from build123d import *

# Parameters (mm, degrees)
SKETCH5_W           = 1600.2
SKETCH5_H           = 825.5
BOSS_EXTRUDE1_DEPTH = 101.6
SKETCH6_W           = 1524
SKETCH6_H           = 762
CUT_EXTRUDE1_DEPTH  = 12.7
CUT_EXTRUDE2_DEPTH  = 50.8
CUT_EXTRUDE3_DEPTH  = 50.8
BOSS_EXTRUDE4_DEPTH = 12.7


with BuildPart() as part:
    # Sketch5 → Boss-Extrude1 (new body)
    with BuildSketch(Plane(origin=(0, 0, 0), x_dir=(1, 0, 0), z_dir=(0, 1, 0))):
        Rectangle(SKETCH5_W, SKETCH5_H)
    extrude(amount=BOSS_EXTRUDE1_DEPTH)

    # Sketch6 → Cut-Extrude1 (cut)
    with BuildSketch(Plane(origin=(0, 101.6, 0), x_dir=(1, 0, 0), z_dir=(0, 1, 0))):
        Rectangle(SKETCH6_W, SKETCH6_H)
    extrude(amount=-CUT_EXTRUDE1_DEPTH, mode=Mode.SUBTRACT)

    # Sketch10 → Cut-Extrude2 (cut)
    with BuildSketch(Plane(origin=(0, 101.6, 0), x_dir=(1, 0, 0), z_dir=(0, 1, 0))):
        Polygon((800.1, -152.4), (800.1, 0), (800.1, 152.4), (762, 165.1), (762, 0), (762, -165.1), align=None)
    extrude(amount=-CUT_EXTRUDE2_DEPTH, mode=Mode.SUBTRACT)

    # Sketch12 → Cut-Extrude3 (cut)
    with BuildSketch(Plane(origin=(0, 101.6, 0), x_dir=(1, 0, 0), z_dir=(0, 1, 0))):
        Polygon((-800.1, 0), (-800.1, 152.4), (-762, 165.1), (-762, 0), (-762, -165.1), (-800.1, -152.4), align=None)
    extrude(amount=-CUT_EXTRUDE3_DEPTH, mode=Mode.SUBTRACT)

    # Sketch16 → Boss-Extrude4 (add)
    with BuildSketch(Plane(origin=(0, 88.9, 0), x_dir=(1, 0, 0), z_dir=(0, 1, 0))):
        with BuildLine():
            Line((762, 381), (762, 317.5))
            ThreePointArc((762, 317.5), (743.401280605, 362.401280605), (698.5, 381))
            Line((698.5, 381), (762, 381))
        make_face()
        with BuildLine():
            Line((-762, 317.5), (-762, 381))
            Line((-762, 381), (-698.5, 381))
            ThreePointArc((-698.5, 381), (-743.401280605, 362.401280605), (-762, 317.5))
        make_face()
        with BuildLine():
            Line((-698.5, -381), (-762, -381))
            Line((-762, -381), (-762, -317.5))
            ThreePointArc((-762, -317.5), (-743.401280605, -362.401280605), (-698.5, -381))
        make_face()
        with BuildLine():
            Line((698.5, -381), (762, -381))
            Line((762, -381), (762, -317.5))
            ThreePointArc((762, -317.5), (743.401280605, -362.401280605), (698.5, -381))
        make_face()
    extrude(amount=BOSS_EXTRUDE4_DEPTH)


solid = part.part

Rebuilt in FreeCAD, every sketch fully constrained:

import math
import FreeCAD as App
import Part
import Sketcher
Q = App.Units.Quantity

doc = App.newDocument("Part")
body = doc.addObject("PartDesign::Body", "Body")

# Sketch on XZ plane
sketch1 = doc.addObject("Sketcher::SketchObject", "Sketch")
body.addObject(sketch1)
sketch1.AttachmentSupport = (doc.XZ_Plane, [""])
sketch1.MapMode = "FlatFace"
sketch1.addGeometry([
    Part.LineSegment(App.Vector(-800, -413, 0), App.Vector(-800, 413, 0)),
    Part.LineSegment(App.Vector(-800, 413, 0), App.Vector(800, 413, 0)),
    Part.LineSegment(App.Vector(800, 413, 0), App.Vector(800, -413, 0)),
    Part.LineSegment(App.Vector(800, -413, 0), App.Vector(-800, -413, 0)),
], False)
sketch1.addConstraint([
    Sketcher.Constraint("Coincident", 0, 2, 1, 1),
    Sketcher.Constraint("Coincident", 1, 2, 2, 1),
    Sketcher.Constraint("Coincident", 2, 2, 3, 1),
    Sketcher.Constraint("Coincident", 3, 2, 0, 1),
    Sketcher.Constraint("Vertical", 0),
    Sketcher.Constraint("Horizontal", 1),
    Sketcher.Constraint("Vertical", 2),
    Sketcher.Constraint("Horizontal", 3),
    Sketcher.Constraint("Symmetric", 0, 2, 2, 2, -1, 1),
    Sketcher.Constraint("DistanceX", 1, 1, 1, 2, Q("63 in")),
    Sketcher.Constraint("DistanceY", 0, 1, 0, 2, Q("32.5 in")),
])
pad1 = doc.addObject("PartDesign::Pad", "Pad")
body.addObject(pad1)
pad1.Profile = sketch1
pad1.Length = Q("4 in")
pad1.Reversed = True

# Sketch on XZ plane
sketch2 = doc.addObject("Sketcher::SketchObject", "Sketch001")
body.addObject(sketch2)
sketch2.AttachmentSupport = (doc.XZ_Plane, [""])
sketch2.MapMode = "FlatFace"
sketch2.AttachmentOffset = App.Placement(App.Vector(0, 0, -4 * 25.4), App.Rotation())
sketch2.addGeometry([
    Part.LineSegment(App.Vector(-762, -381, 0), App.Vector(-762, 381, 0)),
    Part.LineSegment(App.Vector(-762, 381, 0), App.Vector(762, 381, 0)),
    Part.LineSegment(App.Vector(762, 381, 0), App.Vector(762, -381, 0)),
    Part.LineSegment(App.Vector(762, -381, 0), App.Vector(-762, -381, 0)),
], False)
sketch2.addConstraint([
    Sketcher.Constraint("Coincident", 0, 2, 1, 1),
    Sketcher.Constraint("Coincident", 1, 2, 2, 1),
    Sketcher.Constraint("Coincident", 2, 2, 3, 1),
    Sketcher.Constraint("Coincident", 3, 2, 0, 1),
    Sketcher.Constraint("Vertical", 0),
    Sketcher.Constraint("Horizontal", 1),
    Sketcher.Constraint("Vertical", 2),
    Sketcher.Constraint("Horizontal", 3),
    Sketcher.Constraint("Symmetric", 0, 2, 2, 2, -1, 1),
    Sketcher.Constraint("DistanceX", 1, 1, 1, 2, Q("60 in")),
    Sketcher.Constraint("DistanceY", 0, 1, 0, 2, Q("30 in")),
])
pocket1 = doc.addObject("PartDesign::Pocket", "Pocket")
body.addObject(pocket1)
pocket1.Profile = sketch2
pocket1.Length = Q("0.5 in")
pocket1.Reversed = True

# Sketch on XZ plane
sketch3 = doc.addObject("Sketcher::SketchObject", "Sketch002")
body.addObject(sketch3)
sketch3.AttachmentSupport = (doc.XZ_Plane, [""])
sketch3.MapMode = "FlatFace"
sketch3.AttachmentOffset = App.Placement(App.Vector(0, 0, -4 * 25.4), App.Rotation())
sketch3.addGeometry([
    Part.LineSegment(App.Vector(800, 152, 0), App.Vector(800, -152, 0)),
    Part.LineSegment(App.Vector(800, -152, 0), App.Vector(762, -165, 0)),
    Part.LineSegment(App.Vector(762, -165, 0), App.Vector(762, 165, 0)),
    Part.LineSegment(App.Vector(762, 165, 0), App.Vector(800, 152, 0)),
], False)
sketch3.addConstraint([
    Sketcher.Constraint("Coincident", 0, 2, 1, 1),
    Sketcher.Constraint("Coincident", 1, 2, 2, 1),
    Sketcher.Constraint("Coincident", 2, 2, 3, 1),
    Sketcher.Constraint("Coincident", 3, 2, 0, 1),
    Sketcher.Constraint("Vertical", 0),
    Sketcher.Constraint("Vertical", 2),
    Sketcher.Constraint("Equal", 1, 3),
    Sketcher.Constraint("DistanceY", 0, 2, 0, 1, Q("12 in")),
    Sketcher.Constraint("DistanceY", 2, 1, 2, 2, Q("13 in")),
    Sketcher.Constraint("DistanceY", 0, 2, -1, 1, Q("6 in")),
    Sketcher.Constraint("DistanceX", -1, 1, 1, 2, Q("30 in")),
    Sketcher.Constraint("DistanceX", -1, 1, 0, 2, Q("31.5 in")),
])
pocket2 = doc.addObject("PartDesign::Pocket", "Pocket001")
body.addObject(pocket2)
pocket2.Profile = sketch3
pocket2.Length = Q("2 in")
pocket2.Reversed = True

# Sketch on XZ plane
sketch4 = doc.addObject("Sketcher::SketchObject", "Sketch003")
body.addObject(sketch4)
sketch4.AttachmentSupport = (doc.XZ_Plane, [""])
sketch4.MapMode = "FlatFace"
sketch4.AttachmentOffset = App.Placement(App.Vector(0, 0, -4 * 25.4), App.Rotation())
sketch4.addGeometry([
    Part.LineSegment(App.Vector(-800, -152, 0), App.Vector(-800, 152, 0)),
    Part.LineSegment(App.Vector(-800, 152, 0), App.Vector(-762, 165, 0)),
    Part.LineSegment(App.Vector(-762, 165, 0), App.Vector(-762, -165, 0)),
    Part.LineSegment(App.Vector(-762, -165, 0), App.Vector(-800, -152, 0)),
], False)
sketch4.addConstraint([
    Sketcher.Constraint("Coincident", 0, 2, 1, 1),
    Sketcher.Constraint("Coincident", 1, 2, 2, 1),
    Sketcher.Constraint("Coincident", 2, 2, 3, 1),
    Sketcher.Constraint("Coincident", 3, 2, 0, 1),
    Sketcher.Constraint("Vertical", 0),
    Sketcher.Constraint("Vertical", 2),
    Sketcher.Constraint("Equal", 1, 3),
    Sketcher.Constraint("DistanceY", 0, 1, 0, 2, Q("12 in")),
    Sketcher.Constraint("DistanceY", 2, 2, 2, 1, Q("13 in")),
    Sketcher.Constraint("DistanceY", -1, 1, 0, 2, Q("6 in")),
    Sketcher.Constraint("DistanceX", 1, 2, -1, 1, Q("30 in")),
    Sketcher.Constraint("DistanceX", 0, 2, -1, 1, Q("31.5 in")),
])
pocket3 = doc.addObject("PartDesign::Pocket", "Pocket002")
body.addObject(pocket3)
pocket3.Profile = sketch4
pocket3.Length = Q("2 in")
pocket3.Reversed = True

# Sketch on XZ plane
sketch5 = doc.addObject("Sketcher::SketchObject", "Sketch004")
body.addObject(sketch5)
sketch5.AttachmentSupport = (doc.XZ_Plane, [""])
sketch5.MapMode = "FlatFace"
sketch5.AttachmentOffset = App.Placement(App.Vector(0, 0, -3.5 * 25.4), App.Rotation())
sketch5.addGeometry([
    Part.LineSegment(App.Vector(762, -318, 0), App.Vector(762, -381, 0)),  # 0
    Part.LineSegment(App.Vector(762, -381, 0), App.Vector(698, -381, 0)),  # 1
    Part.ArcOfCircle(Part.Circle(App.Vector(698, -317, 0), App.Vector(0, 0, 1), 64), math.radians(-90), math.radians(0)),  # 2
    Part.LineSegment(App.Vector(-762, -381, 0), App.Vector(-762, -318, 0)),  # 3
    Part.ArcOfCircle(Part.Circle(App.Vector(-698, -317, 0), App.Vector(0, 0, 1), 64), math.radians(-180), math.radians(-90)),  # 4
    Part.LineSegment(App.Vector(-698, -381, 0), App.Vector(-762, -381, 0)),  # 5
    Part.LineSegment(App.Vector(-762, 381, 0), App.Vector(-698, 381, 0)),  # 6
    Part.ArcOfCircle(Part.Circle(App.Vector(-698, 317, 0), App.Vector(0, 0, 1), 64), math.radians(90), math.radians(180)),  # 7
    Part.LineSegment(App.Vector(-762, 318, 0), App.Vector(-762, 381, 0)),  # 8
    Part.LineSegment(App.Vector(698, 381, 0), App.Vector(762, 381, 0)),  # 9
    Part.LineSegment(App.Vector(762, 381, 0), App.Vector(762, 318, 0)),  # 10
    Part.ArcOfCircle(Part.Circle(App.Vector(698, 317, 0), App.Vector(0, 0, 1), 64), math.radians(0), math.radians(90)),  # 11
], False)
sketch5.addConstraint([
    Sketcher.Constraint("Coincident", 0, 2, 1, 1),
    Sketcher.Constraint("Tangent", 1, 2, 2, 1),
    Sketcher.Constraint("Tangent", 2, 2, 0, 1),
    Sketcher.Constraint("Tangent", 3, 2, 4, 1),
    Sketcher.Constraint("Tangent", 4, 2, 5, 1),
    Sketcher.Constraint("Coincident", 5, 2, 3, 1),
    Sketcher.Constraint("Tangent", 6, 2, 7, 1),
    Sketcher.Constraint("Tangent", 7, 2, 8, 1),
    Sketcher.Constraint("Coincident", 8, 2, 6, 1),
    Sketcher.Constraint("Coincident", 9, 2, 10, 1),
    Sketcher.Constraint("Tangent", 10, 2, 11, 1),
    Sketcher.Constraint("Tangent", 11, 2, 9, 1),
    Sketcher.Constraint("Vertical", 0),
    Sketcher.Constraint("Horizontal", 1),
    Sketcher.Constraint("Vertical", 3),
    Sketcher.Constraint("Horizontal", 5),
    Sketcher.Constraint("Horizontal", 6),
    Sketcher.Constraint("Vertical", 8),
    Sketcher.Constraint("Horizontal", 9),
    Sketcher.Constraint("Vertical", 10),
    Sketcher.Constraint("Equal", 2, 4),
    Sketcher.Constraint("Equal", 4, 7),
    Sketcher.Constraint("Equal", 7, 11),
    Sketcher.Constraint("Symmetric", 2, 3, 7, 3, -1, 1),
    Sketcher.Constraint("Symmetric", 4, 3, 11, 3, -1, 1),
    Sketcher.Constraint("Symmetric", 2, 3, 4, 3, -2),
    Sketcher.Constraint("Radius", 2, Q("2.5 in")),
    Sketcher.Constraint("DistanceX", -1, 1, 0, 2, Q("30 in")),
    Sketcher.Constraint("DistanceY", 0, 2, -1, 1, Q("15 in")),
])
pad2 = doc.addObject("PartDesign::Pad", "Pad001")
body.addObject(pad2)
pad2.Profile = sketch5
pad2.Length = Q("0.5 in")
pad2.Reversed = True

doc.recompute()
